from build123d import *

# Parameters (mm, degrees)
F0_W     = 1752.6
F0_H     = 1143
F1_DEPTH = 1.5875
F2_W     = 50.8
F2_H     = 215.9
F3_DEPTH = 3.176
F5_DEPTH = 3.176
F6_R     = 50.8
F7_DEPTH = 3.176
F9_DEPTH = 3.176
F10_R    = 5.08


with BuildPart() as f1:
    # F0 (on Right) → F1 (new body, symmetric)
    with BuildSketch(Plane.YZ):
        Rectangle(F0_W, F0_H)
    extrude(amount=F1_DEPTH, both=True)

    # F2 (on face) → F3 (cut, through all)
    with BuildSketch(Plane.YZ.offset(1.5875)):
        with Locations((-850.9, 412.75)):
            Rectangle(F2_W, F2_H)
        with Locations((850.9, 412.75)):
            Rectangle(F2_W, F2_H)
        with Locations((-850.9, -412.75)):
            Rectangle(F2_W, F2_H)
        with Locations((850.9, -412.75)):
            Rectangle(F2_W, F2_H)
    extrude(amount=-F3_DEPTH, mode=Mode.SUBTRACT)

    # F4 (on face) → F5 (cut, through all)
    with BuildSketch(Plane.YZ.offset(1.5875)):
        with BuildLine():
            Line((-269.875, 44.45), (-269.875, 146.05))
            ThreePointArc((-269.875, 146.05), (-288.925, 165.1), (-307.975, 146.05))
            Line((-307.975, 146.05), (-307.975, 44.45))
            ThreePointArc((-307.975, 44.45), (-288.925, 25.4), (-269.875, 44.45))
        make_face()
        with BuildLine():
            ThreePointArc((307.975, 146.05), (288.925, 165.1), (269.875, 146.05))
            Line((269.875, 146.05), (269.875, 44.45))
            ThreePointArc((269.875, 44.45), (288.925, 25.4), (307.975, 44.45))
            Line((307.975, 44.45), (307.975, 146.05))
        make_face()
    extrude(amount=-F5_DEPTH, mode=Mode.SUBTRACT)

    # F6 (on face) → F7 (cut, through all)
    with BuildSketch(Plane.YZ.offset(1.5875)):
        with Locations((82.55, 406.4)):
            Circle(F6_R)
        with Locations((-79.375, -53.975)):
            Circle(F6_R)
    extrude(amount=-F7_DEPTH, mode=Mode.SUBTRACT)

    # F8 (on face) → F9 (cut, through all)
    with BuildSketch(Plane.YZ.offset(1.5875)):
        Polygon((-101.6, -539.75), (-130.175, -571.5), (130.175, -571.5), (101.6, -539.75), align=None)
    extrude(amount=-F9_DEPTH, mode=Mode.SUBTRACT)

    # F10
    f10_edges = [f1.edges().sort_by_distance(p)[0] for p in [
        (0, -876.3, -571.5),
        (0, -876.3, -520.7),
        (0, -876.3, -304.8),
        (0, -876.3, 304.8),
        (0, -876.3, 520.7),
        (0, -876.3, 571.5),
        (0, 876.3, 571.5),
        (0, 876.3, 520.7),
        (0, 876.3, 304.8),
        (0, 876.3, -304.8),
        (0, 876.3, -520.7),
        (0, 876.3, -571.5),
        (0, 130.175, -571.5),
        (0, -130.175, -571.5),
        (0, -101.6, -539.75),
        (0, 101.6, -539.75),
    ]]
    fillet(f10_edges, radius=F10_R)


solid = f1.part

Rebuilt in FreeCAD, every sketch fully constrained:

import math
import FreeCAD as App
import Part
import Sketcher
Q = App.Units.Quantity


def edges_at(feature, points):
    """Names of the edges that pass closest to the given points."""
    edges = feature.Shape.Edges
    near = lambda p: min(range(len(edges)), key=lambda i: edges[i].distToShape(Part.Vertex(*p))[0])
    return sorted({f"Edge{near(p) + 1}" for p in points})

doc = App.newDocument("Part")
params = doc.addObject("Spreadsheet::Sheet", "Params")
for row, (alias, value) in enumerate([
    ("sketch1_width", "69 in"),
    ("sketch1_height", "45 in"),
    ("pad1_length", "0.125 in"),
    ("sketch2_width", "2 in"),
    ("sketch2_height", "8.5 in"),
    ("sketch3_height", "4 in"),
    ("sketch3_radius", "0.75 in"),
    ("sketch4_diameter", "4 in"),
    ("sketch5_width", "8 in"),
    ("sketch5_width2", "10.25 in"),
    ("fillet_radius", "0.2 in"),
], start=1):
    params.set(f"A{row}", alias)
    params.set(f"B{row}", "=" + value)
    params.setAlias(f"B{row}", alias)

body = doc.addObject("PartDesign::Body", "Body")

# Sketch on YZ plane
sketch1 = body.newObject("Sketcher::SketchObject", "Sketch")
sketch1.AttachmentSupport = (doc.getObject("YZ_Plane"), [""])
sketch1.MapMode = "FlatFace"
sketch1.addGeometry([
    Part.LineSegment(App.Vector(-876.3, 571.5, 0), App.Vector(-876.3, -571.5, 0)),
    Part.LineSegment(App.Vector(-876.3, -571.5, 0), App.Vector(876.3, -571.5, 0)),
    Part.LineSegment(App.Vector(876.3, -571.5, 0), App.Vector(876.3, 571.5, 0)),
    Part.LineSegment(App.Vector(876.3, 571.5, 0), App.Vector(-876.3, 571.5, 0)),
], False)
sketch1.addConstraint([
    Sketcher.Constraint("Coincident", 0, 2, 1, 1),
    Sketcher.Constraint("Coincident", 1, 2, 2, 1),
    Sketcher.Constraint("Coincident", 2, 2, 3, 1),
    Sketcher.Constraint("Coincident", 3, 2, 0, 1),
    Sketcher.Constraint("Vertical", 0),
    Sketcher.Constraint("Horizontal", 1),
    Sketcher.Constraint("Vertical", 2),
    Sketcher.Constraint("Horizontal", 3),
    Sketcher.Constraint("Symmetric", 0, 2, 2, 2, -1, 1),
    Sketcher.Constraint("DistanceX", 1, 1, 1, 2, Q("69 in")),
    Sketcher.Constraint("DistanceY", 0, 2, 0, 1, Q("45 in")),
])
sketch1.setExpression("Constraints[9]", "Params.sketch1_width")
sketch1.setExpression("Constraints[10]", "Params.sketch1_height")
pad1 = body.newObject("PartDesign::Pad", "Pad")
pad1.Profile = sketch1
pad1.setExpression("Length", "Params.pad1_length")
pad1.Midplane = True

# Sketch on YZ plane
sketch2 = body.newObject("Sketcher::SketchObject", "Sketch001")
sketch2.AttachmentSupport = (doc.getObject("YZ_Plane"), [""])
sketch2.MapMode = "FlatFace"
sketch2.AttachmentOffset = App.Placement(App.Vector(0, 0, 0.0625 * 25.4), App.Rotation())
sketch2.addGeometry([
    Part.LineSegment(App.Vector(-876.3, 520.7, 0), App.Vector(-876.3, 304.8, 0)),  # 0
    Part.LineSegment(App.Vector(-876.3, 304.8, 0), App.Vector(-825.5, 304.8, 0)),  # 1
    Part.LineSegment(App.Vector(-825.5, 304.8, 0), App.Vector(-825.5, 520.7, 0)),  # 2
    Part.LineSegment(App.Vector(-825.5, 520.7, 0), App.Vector(-876.3, 520.7, 0)),  # 3
    Part.LineSegment(App.Vector(825.5, 520.7, 0), App.Vector(825.5, 304.8, 0)),  # 4
    Part.LineSegment(App.Vector(825.5, 304.8, 0), App.Vector(876.3, 304.8, 0)),  # 5
    Part.LineSegment(App.Vector(876.3, 304.8, 0), App.Vector(876.3, 520.7, 0)),  # 6
    Part.LineSegment(App.Vector(876.3, 520.7, 0), App.Vector(825.5, 520.7, 0)),  # 7
    Part.LineSegment(App.Vector(-876.3, -304.8, 0), App.Vector(-876.3, -520.7, 0)),  # 8
    Part.LineSegment(App.Vector(-876.3, -520.7, 0), App.Vector(-825.5, -520.7, 0)),  # 9
    Part.LineSegment(App.Vector(-825.5, -520.7, 0), App.Vector(-825.5, -304.8, 0)),  # 10
    Part.LineSegment(App.Vector(-825.5, -304.8, 0), App.Vector(-876.3, -304.8, 0)),  # 11
    Part.LineSegment(App.Vector(825.5, -304.8, 0), App.Vector(825.5, -520.7, 0)),  # 12
    Part.LineSegment(App.Vector(825.5, -520.7, 0), App.Vector(876.3, -520.7, 0)),  # 13
    Part.LineSegment(App.Vector(876.3, -520.7, 0), App.Vector(876.3, -304.8, 0)),  # 14
    Part.LineSegment(App.Vector(876.3, -304.8, 0), App.Vector(825.5, -304.8, 0)),  # 15
], False)
sketch2.addConstraint([
    Sketcher.Constraint("Coincident", 0, 2, 1, 1),
    Sketcher.Constraint("Coincident", 1, 2, 2, 1),
    Sketcher.Constraint("Coincident", 2, 2, 3, 1),
    Sketcher.Constraint("Coincident", 3, 2, 0, 1),
    Sketcher.Constraint("Coincident", 4, 2, 5, 1),
    Sketcher.Constraint("Coincident", 5, 2, 6, 1),
    Sketcher.Constraint("Coincident", 6, 2, 7, 1),
    Sketcher.Constraint("Coincident", 7, 2, 4, 1),
    Sketcher.Constraint("Coincident", 8, 2, 9, 1),
    Sketcher.Constraint("Coincident", 9, 2, 10, 1),
    Sketcher.Constraint("Coincident", 10, 2, 11, 1),
    Sketcher.Constraint("Coincident", 11, 2, 8, 1),
    Sketcher.Constraint("Coincident", 12, 2, 13, 1),
    Sketcher.Constraint("Coincident", 13, 2, 14, 1),
    Sketcher.Constraint("Coincident", 14, 2, 15, 1),
    Sketcher.Constraint("Coincident", 15, 2, 12, 1),
    Sketcher.Constraint("Vertical", 0),
    Sketcher.Constraint("Horizontal", 1),
    Sketcher.Constraint("Vertical", 2),
    Sketcher.Constraint("Horizontal", 3),
    Sketcher.Constraint("Vertical", 4),
    Sketcher.Constraint("Horizontal", 5),
    Sketcher.Constraint("Vertical", 6),
    Sketcher.Constraint("Horizontal", 7),
    Sketcher.Constraint("Vertical", 8),
    Sketcher.Constraint("Horizontal", 9),
    Sketcher.Constraint("Vertical", 10),
    Sketcher.Constraint("Horizontal", 11),
    Sketcher.Constraint("Vertical", 12),
    Sketcher.Constraint("Horizontal", 13),
    Sketcher.Constraint("Vertical", 14),
    Sketcher.Constraint("Horizontal", 15),
    Sketcher.Constraint("Symmetric", 6, 2, 8, 2, -1, 1),
    Sketcher.Constraint("Symmetric", 4, 2, 10, 2, -1, 1),
    Sketcher.Constraint("Symmetric", 2, 2, 12, 2, -1, 1),
    Sketcher.Constraint("Symmetric", 0, 2, 14, 2, -1, 1),
    Sketcher.Constraint("Symmetric", 1, 2, 4, 2, -2),
    Sketcher.Constraint("Symmetric", 3, 2, 6, 2, -2),
    Sketcher.Constraint("DistanceX", 1, 1, 1, 2, Q("2 in")),
    Sketcher.Constraint("DistanceY", 0, 2, 0, 1, Q("8.5 in")),
    Sketcher.Constraint("DistanceY", -1, 1, 0, 2, Q("12 in")),
    Sketcher.Constraint("DistanceX", 1, 2, 4, 2, Q("65 in")),
])
sketch2.setExpression("Constraints[38]", "Params.sketch2_width")
sketch2.setExpression("Constraints[39]", "Params.sketch2_height")
pocket1 = body.newObject("PartDesign::Pocket", "Pocket")
pocket1.Profile = sketch2
pocket1.Type = "ThroughAll"

# Sketch on YZ plane
sketch3 = body.newObject("Sketcher::SketchObject", "Sketch002")
sketch3.AttachmentSupport = (doc.getObject("YZ_Plane"), [""])
sketch3.MapMode = "FlatFace"
sketch3.AttachmentOffset = App.Placement(App.Vector(0, 0, 0.0625 * 25.4), App.Rotation())
sketch3.addGeometry([
    Part.LineSegment(App.Vector(-269.875, 44.45, 0), App.Vector(-269.875, 146.05, 0)),  # 0
    Part.ArcOfCircle(Part.Circle(App.Vector(-288.925, 146.05, 0), App.Vector(0, 0, 1), 19.05), math.radians(0), math.radians(180)),  # 1
    Part.LineSegment(App.Vector(-307.975, 146.05, 0), App.Vector(-307.975, 44.45, 0)),  # 2
    Part.ArcOfCircle(Part.Circle(App.Vector(-288.925, 44.45, 0), App.Vector(0, 0, 1), 19.05), math.radians(180), math.radians(360)),  # 3
    Part.ArcOfCircle(Part.Circle(App.Vector(288.925, 146.05, 0), App.Vector(0, 0, 1), 19.05), math.radians(0), math.radians(180)),  # 4
    Part.LineSegment(App.Vector(269.875, 146.05, 0), App.Vector(269.875, 44.45, 0)),  # 5
    Part.ArcOfCircle(Part.Circle(App.Vector(288.925, 44.45, 0), App.Vector(0, 0, 1), 19.05), math.radians(180), math.radians(360)),  # 6
    Part.LineSegment(App.Vector(307.975, 44.45, 0), App.Vector(307.975, 146.05, 0)),  # 7
], False)
sketch3.addConstraint([
    Sketcher.Constraint("Tangent", 0, 2, 1, 1),
    Sketcher.Constraint("Tangent", 1, 2, 2, 1),
    Sketcher.Constraint("Tangent", 2, 2, 3, 1),
    Sketcher.Constraint("Tangent", 3, 2, 0, 1),
    Sketcher.Constraint("Tangent", 4, 2, 5, 1),
    Sketcher.Constraint("Tangent", 5, 2, 6, 1),
    Sketcher.Constraint("Tangent", 6, 2, 7, 1),
    Sketcher.Constraint("Tangent", 7, 2, 4, 1),
    Sketcher.Constraint("Vertical", 0),
    Sketcher.Constraint("Vertical", 2),
    Sketcher.Constraint("Vertical", 5),
    Sketcher.Constraint("Vertical", 7),
    Sketcher.Constraint("Equal", 3, 4),
    Sketcher.Constraint("Symmetric", 1, 3, 4, 3, -2),
    Sketcher.Constraint("Horizontal", 3, 3, 6, 3),
    Sketcher.Constraint("DistanceY", 0, 1, 0, 2, Q("4 in")),
    Sketcher.Constraint("Radius", 1, Q("0.75 in")),
    Sketcher.Constraint("DistanceX", 0, 2, 4, 3, Q("22 in")),
    Sketcher.Constraint("DistanceY", -1, 1, 1, 3, Q("5.75 in")),
])
sketch3.setExpression("Constraints[15]", "Params.sketch3_height")
sketch3.setExpression("Constraints[16]", "Params.sketch3_radius")
pocket2 = body.newObject("PartDesign::Pocket", "Pocket001")
pocket2.Profile = sketch3
pocket2.Type = "ThroughAll"

# Sketch on YZ plane
sketch4 = body.newObject("Sketcher::SketchObject", "Sketch003")
sketch4.AttachmentSupport = (doc.getObject("YZ_Plane"), [""])
sketch4.MapMode = "FlatFace"
sketch4.AttachmentOffset = App.Placement(App.Vector(0, 0, 0.0625 * 25.4), App.Rotation())
sketch4.addGeometry([
    Part.Circle(App.Vector(82.55, 406.4, 0), App.Vector(0, 0, 1), 50.8),
    Part.Circle(App.Vector(-79.375, -53.975, 0), App.Vector(0, 0, 1), 50.8),
], False)
sketch4.addConstraint([
    Sketcher.Constraint("Equal", 0, 1),
    Sketcher.Constraint("Diameter", 0, Q("4 in")),
    Sketcher.Constraint("DistanceY", -1, 1, 0, 3, Q("16 in")),
    Sketcher.Constraint("DistanceX", -1, 1, 0, 3, Q("3.25 in")),
    Sketcher.Constraint("DistanceX", 1, 3, -1, 1, Q("3.125 in")),
    Sketcher.Constraint("DistanceY", 1, 3, -1, 1, Q("2.125 in")),
])
sketch4.setExpression("Constraints[1]", "Params.sketch4_diameter")
pocket3 = body.newObject("PartDesign::Pocket", "Pocket002")
pocket3.Profile = sketch4
pocket3.Type = "ThroughAll"

# Sketch on YZ plane
sketch5 = body.newObject("Sketcher::SketchObject", "Sketch004")
sketch5.AttachmentSupport = (doc.getObject("YZ_Plane"), [""])
sketch5.MapMode = "FlatFace"
sketch5.AttachmentOffset = App.Placement(App.Vector(0, 0, 0.0625 * 25.4), App.Rotation())
sketch5.addGeometry([
    Part.LineSegment(App.Vector(-101.6, -539.75, 0), App.Vector(-130.175, -571.5, 0)),
    Part.LineSegment(App.Vector(-130.175, -571.5, 0), App.Vector(130.175, -571.5, 0)),
    Part.LineSegment(App.Vector(130.175, -571.5, 0), App.Vector(101.6, -539.75, 0)),
    Part.LineSegment(App.Vector(101.6, -539.75, 0), App.Vector(-101.6, -539.75, 0)),
], False)
sketch5.addConstraint([
    Sketcher.Constraint("Coincident", 0, 2, 1, 1),
    Sketcher.Constraint("Coincident", 1, 2, 2, 1),
    Sketcher.Constraint("Coincident", 2, 2, 3, 1),
    Sketcher.Constraint("Coincident", 3, 2, 0, 1),
    Sketcher.Constraint("Horizontal", 1),
    Sketcher.Constraint("Horizontal", 3),
    Sketcher.Constraint("Equal", 0, 2),
    Sketcher.Constraint("DistanceX", 3, 2, 3, 1, Q("8 in")),
    Sketcher.Constraint("DistanceX", -1, 1, 2, 2, Q("4 in")),
    Sketcher.Constraint("DistanceX", 1, 1, 1, 2, Q("10.25 in")),
    Sketcher.Constraint("DistanceY", 0, 2, -1, 1, Q("22.5 in")),
    Sketcher.Constraint("DistanceY", 2, 2, -1, 1, Q("21.25 in")),
])
sketch5.setExpression("Constraints[7]", "Params.sketch5_width")
sketch5.setExpression("Constraints[9]", "Params.sketch5_width2")
pocket4 = body.newObject("PartDesign::Pocket", "Pocket003")
pocket4.Profile = sketch5
pocket4.Type = "ThroughAll"
doc.recompute()

fillet = body.newObject("PartDesign::Fillet", "Fillet")
fillet.Base = (pocket4, edges_at(pocket4, [
    (0, -876.3, -571.5),
    (0, -876.3, -520.7),
    (0, -876.3, -304.8),
    (0, -876.3, 304.8),
    (0, -876.3, 520.7),
    (0, -876.3, 571.5),
    (0, 876.3, 571.5),
    (0, 876.3, 520.7),
    (0, 876.3, 304.8),
    (0, 876.3, -304.8),
    (0, 876.3, -520.7),
    (0, 876.3, -571.5),
    (0, 130.175, -571.5),
    (0, -130.175, -571.5),
    (0, -101.6, -539.75),
    (0, 101.6, -539.75),
]))
fillet.setExpression("Radius", "Params.fillet_radius")

doc.recompute()
